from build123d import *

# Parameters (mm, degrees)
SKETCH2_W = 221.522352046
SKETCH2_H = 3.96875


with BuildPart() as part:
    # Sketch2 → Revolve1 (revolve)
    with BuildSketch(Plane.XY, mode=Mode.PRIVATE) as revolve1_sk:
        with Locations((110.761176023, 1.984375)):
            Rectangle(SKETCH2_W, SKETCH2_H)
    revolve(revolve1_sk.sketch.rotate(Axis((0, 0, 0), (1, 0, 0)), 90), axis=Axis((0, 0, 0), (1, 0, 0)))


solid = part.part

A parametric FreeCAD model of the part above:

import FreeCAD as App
import Part
import Sketcher
from FreeCAD import Vector
Q = App.Units.Quantity


def add_polygon(sketch, points):
    """Adds a closed chain of lines whose ends are joined by coincident constraints."""
    first, n = sketch.GeometryCount, len(points)
    for a, b in zip(points, points[1:] + points[:1]):
        sketch.addGeometry(Part.LineSegment(App.Vector(*a, 0), App.Vector(*b, 0)), False)
    for i in range(n):
        sketch.addConstraint(Sketcher.Constraint("Coincident", first + i, 2, first + (i + 1) % n, 1))

doc = App.newDocument("Part")
body = doc.addObject("PartDesign::Body", "Body")

# Sketch on XY plane
sketch1 = doc.addObject("Sketcher::SketchObject", "Sketch")
body.addObject(sketch1)
sketch1.AttachmentSupport = (doc.XY_Plane, [""])
sketch1.MapMode = "FlatFace"
add_polygon(sketch1, [(0, 4), (0, 0), (221.5, 0), (221.5, 4)])  # lines 0-3
sketch1.addConstraint(Sketcher.Constraint("Vertical", 0))
sketch1.addConstraint(Sketcher.Constraint("Horizontal", 1))
sketch1.addConstraint(Sketcher.Constraint("Vertical", 2))
sketch1.addConstraint(Sketcher.Constraint("Horizontal", 3))
sketch1.addConstraint(Sketcher.Constraint("Coincident", 0, 2, -1, 1))
sketch1.addConstraint(Sketcher.Constraint("DistanceY", 0, 2, 0, 1, Q("0.15625 in")))
sketch1.addConstraint(Sketcher.Constraint("DistanceX", 1, 1, 1, 2, 221.522352))
revolution = doc.addObject("PartDesign::Revolution", "Revolution")
body.addObject(revolution)
revolution.Profile = sketch1
revolution.ReferenceAxis = (sketch1, ["H_Axis"])
revolution.Angle = 360

doc.recompute()
